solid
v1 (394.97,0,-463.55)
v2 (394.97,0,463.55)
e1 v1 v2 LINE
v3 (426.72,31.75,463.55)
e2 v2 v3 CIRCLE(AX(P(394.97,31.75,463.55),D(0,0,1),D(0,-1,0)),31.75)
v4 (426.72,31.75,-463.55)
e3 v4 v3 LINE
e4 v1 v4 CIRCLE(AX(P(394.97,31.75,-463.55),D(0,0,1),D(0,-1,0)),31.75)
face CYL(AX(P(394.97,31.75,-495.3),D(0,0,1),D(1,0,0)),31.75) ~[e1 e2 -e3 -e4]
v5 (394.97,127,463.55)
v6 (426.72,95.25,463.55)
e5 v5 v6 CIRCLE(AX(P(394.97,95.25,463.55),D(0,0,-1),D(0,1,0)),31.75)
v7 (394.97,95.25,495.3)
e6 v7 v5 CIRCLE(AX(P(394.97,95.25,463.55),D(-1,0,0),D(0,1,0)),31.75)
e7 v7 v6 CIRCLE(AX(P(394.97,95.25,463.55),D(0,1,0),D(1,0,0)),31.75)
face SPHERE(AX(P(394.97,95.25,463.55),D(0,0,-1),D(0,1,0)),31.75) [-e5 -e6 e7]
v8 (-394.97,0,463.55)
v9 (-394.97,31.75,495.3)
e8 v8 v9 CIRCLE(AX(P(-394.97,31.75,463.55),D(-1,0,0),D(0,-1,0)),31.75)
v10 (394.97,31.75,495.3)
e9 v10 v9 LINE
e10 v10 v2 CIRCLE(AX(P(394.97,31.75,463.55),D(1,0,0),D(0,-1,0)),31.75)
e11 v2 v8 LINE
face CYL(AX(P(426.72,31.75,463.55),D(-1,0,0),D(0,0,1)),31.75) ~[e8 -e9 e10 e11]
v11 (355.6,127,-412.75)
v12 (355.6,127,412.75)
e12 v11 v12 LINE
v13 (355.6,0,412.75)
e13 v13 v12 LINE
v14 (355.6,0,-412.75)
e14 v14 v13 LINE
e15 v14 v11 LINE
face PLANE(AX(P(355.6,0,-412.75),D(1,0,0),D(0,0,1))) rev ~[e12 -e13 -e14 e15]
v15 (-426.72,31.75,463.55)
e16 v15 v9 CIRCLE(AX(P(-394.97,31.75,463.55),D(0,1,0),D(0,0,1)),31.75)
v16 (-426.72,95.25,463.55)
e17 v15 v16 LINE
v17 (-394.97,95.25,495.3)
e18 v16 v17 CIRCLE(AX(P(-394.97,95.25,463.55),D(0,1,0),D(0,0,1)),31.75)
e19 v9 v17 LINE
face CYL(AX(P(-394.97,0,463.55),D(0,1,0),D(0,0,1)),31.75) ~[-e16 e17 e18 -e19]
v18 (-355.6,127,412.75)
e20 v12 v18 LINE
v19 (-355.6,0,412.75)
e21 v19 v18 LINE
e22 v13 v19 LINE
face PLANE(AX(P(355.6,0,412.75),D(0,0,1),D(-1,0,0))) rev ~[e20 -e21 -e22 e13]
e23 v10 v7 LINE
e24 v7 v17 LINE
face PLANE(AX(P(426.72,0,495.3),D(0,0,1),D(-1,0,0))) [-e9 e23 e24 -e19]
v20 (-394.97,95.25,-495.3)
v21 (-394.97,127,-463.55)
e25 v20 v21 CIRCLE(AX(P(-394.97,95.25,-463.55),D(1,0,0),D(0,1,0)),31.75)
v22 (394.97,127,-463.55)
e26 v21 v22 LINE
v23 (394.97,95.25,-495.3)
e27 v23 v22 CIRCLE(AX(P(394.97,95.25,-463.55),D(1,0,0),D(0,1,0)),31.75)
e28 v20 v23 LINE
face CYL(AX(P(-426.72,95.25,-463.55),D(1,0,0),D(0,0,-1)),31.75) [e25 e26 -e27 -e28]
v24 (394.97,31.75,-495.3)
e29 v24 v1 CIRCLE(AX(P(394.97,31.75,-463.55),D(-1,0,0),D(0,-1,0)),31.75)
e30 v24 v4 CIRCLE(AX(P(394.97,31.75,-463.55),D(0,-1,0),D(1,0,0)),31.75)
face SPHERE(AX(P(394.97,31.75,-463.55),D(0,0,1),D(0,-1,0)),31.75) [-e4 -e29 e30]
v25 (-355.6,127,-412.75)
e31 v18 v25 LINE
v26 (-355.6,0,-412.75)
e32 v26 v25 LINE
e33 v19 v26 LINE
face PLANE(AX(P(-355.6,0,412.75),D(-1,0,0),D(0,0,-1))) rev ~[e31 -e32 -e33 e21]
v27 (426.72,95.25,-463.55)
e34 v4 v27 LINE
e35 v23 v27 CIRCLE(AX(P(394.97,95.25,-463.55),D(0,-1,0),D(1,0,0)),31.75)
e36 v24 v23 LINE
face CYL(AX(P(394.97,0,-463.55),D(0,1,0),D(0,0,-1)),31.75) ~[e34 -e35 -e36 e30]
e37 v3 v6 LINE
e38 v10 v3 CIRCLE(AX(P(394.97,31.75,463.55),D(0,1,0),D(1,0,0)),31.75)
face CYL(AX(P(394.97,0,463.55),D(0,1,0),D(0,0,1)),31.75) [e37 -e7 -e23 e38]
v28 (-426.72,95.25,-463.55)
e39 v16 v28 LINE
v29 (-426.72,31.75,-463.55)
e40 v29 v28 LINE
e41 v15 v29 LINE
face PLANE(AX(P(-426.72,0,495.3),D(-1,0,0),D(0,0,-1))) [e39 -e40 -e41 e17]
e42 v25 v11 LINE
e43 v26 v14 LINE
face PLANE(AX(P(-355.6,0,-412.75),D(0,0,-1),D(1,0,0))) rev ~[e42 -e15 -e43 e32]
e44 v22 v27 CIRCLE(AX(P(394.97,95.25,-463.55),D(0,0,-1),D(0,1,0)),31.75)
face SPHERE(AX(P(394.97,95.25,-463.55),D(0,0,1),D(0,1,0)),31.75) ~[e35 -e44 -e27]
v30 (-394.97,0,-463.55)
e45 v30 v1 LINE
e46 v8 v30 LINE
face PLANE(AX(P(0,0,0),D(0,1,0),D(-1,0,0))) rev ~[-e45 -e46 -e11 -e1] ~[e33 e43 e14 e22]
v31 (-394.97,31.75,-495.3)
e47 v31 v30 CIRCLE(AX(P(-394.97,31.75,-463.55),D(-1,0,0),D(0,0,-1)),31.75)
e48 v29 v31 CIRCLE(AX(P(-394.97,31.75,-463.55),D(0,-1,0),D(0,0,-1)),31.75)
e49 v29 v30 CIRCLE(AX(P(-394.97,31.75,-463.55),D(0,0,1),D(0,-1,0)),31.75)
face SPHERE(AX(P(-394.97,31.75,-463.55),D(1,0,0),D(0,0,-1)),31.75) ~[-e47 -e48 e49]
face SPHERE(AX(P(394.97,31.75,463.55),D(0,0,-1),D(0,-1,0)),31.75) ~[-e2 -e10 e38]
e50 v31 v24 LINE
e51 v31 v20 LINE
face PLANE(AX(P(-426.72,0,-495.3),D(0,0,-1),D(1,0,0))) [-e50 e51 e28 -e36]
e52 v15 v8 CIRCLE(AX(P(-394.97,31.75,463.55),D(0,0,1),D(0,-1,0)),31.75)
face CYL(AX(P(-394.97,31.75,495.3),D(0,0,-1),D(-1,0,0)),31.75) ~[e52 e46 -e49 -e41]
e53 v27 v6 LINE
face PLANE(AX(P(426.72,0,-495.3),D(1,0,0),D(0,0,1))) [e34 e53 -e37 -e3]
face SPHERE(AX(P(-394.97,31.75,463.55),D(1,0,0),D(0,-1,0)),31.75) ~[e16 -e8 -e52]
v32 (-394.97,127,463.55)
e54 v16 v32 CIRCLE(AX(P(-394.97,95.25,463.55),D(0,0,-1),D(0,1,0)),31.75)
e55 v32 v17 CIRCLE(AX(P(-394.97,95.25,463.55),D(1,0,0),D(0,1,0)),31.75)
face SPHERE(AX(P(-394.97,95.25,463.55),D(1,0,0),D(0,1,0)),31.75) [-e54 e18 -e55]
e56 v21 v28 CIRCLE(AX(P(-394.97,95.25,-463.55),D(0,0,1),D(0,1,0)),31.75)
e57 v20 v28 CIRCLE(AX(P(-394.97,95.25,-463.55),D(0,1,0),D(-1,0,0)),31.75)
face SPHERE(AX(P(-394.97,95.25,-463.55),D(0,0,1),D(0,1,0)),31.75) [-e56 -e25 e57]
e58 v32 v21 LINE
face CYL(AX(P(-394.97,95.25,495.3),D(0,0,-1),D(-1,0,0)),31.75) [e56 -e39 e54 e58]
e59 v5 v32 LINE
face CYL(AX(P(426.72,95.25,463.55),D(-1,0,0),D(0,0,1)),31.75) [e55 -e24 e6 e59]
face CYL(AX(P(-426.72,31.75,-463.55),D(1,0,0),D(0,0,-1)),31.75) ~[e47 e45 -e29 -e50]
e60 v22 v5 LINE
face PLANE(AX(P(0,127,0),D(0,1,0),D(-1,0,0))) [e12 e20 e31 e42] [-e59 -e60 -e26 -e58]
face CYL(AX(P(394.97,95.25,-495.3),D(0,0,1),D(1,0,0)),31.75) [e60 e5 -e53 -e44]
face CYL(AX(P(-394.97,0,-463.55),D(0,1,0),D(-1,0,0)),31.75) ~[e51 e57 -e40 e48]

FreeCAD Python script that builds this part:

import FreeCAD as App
import Part
import Sketcher

V = App.Vector
Q = App.Units.Quantity


def edges_at(feature, points):
    """Names of the edges that pass closest to the given points."""
    edges = feature.Shape.Edges
    near = lambda p: min(range(len(edges)), key=lambda i: edges[i].distToShape(Part.Vertex(*p))[0])
    return sorted({f"Edge{near(p) + 1}" for p in points})

doc = App.newDocument("Part")
body = doc.addObject("PartDesign::Body", "Body")

sketch1 = body.newObject("Sketcher::SketchObject", "Sketch")
sketch1.AttachmentSupport = (doc.getObject("XZ_Plane"), [""])
sketch1.MapMode = "FlatFace"
sketch1.addGeometry([
    Part.LineSegment(V(-426.72, 495.3, 0), V(426.72, 495.3, 0)),
    Part.LineSegment(V(426.72, 495.3, 0), V(426.72, -495.3, 0)),
    Part.LineSegment(V(426.72, -495.3, 0), V(-426.72, -495.3, 0)),
    Part.LineSegment(V(-426.72, -495.3, 0), V(-426.72, 495.3, 0)),
    Part.LineSegment(V(355.6, -412.75, 0), V(355.6, 412.75, 0)),
    Part.LineSegment(V(355.6, 412.75, 0), V(-355.6, 412.75, 0)),
    Part.LineSegment(V(-355.6, 412.75, 0), V(-355.6, -412.75, 0)),
    Part.LineSegment(V(-355.6, -412.75, 0), V(355.6, -412.75, 0)),
], False)
sketch1.addConstraint([
    Sketcher.Constraint("Coincident", 0, 2, 1, 1),
    Sketcher.Constraint("Coincident", 1, 2, 2, 1),
    Sketcher.Constraint("Coincident", 2, 2, 3, 1),
    Sketcher.Constraint("Coincident", 3, 2, 0, 1),
    Sketcher.Constraint("Coincident", 4, 2, 5, 1),
    Sketcher.Constraint("Coincident", 5, 2, 6, 1),
    Sketcher.Constraint("Coincident", 6, 2, 7, 1),
    Sketcher.Constraint("Coincident", 7, 2, 4, 1),
    Sketcher.Constraint("Horizontal", 0),
    Sketcher.Constraint("Vertical", 1),
    Sketcher.Constraint("Horizontal", 2),
    Sketcher.Constraint("Vertical", 3),
    Sketcher.Constraint("Vertical", 4),
    Sketcher.Constraint("Horizontal", 5),
    Sketcher.Constraint("Vertical", 6),
    Sketcher.Constraint("Horizontal", 7),
    Sketcher.Constraint("Symmetric", 0, 2, 2, 2, -1, 1),
    Sketcher.Constraint("Symmetric", 4, 2, 6, 2, -1, 1),
    Sketcher.Constraint("DistanceX", 5, 2, 5, 1, Q("28 in")),
    Sketcher.Constraint("DistanceY", 4, 1, 4, 2, Q("32.5 in")),
    Sketcher.Constraint("DistanceY", 1, 2, 1, 1, Q("39 in")),
    Sketcher.Constraint("DistanceX", 0, 1, 0, 2, Q("33.6 in")),
])
pad1 = body.newObject("PartDesign::Pad", "Pad")
pad1.Profile = sketch1
pad1.Length = Q("5 in")
pad1.Reversed = True
doc.recompute()

fillet = body.newObject("PartDesign::Fillet", "Fillet")
fillet.Base = (pad1, edges_at(pad1, [
    (426.72, 127, 0),
    (0, 127, 495.3),
    (-426.72, 127, 0),
    (0, 127, -495.3),
    (426.72, 0, 0),
    (0, 0, 495.3),
    (0, 0, -495.3),
    (426.72, 63.5, -495.3),
    (426.72, 63.5, 495.3),
    (-426.72, 63.5, -495.3),
    (-426.72, 0, 0),
    (-426.72, 63.5, 495.3),
]))
fillet.Radius = Q("1.25 in")

doc.recompute()
